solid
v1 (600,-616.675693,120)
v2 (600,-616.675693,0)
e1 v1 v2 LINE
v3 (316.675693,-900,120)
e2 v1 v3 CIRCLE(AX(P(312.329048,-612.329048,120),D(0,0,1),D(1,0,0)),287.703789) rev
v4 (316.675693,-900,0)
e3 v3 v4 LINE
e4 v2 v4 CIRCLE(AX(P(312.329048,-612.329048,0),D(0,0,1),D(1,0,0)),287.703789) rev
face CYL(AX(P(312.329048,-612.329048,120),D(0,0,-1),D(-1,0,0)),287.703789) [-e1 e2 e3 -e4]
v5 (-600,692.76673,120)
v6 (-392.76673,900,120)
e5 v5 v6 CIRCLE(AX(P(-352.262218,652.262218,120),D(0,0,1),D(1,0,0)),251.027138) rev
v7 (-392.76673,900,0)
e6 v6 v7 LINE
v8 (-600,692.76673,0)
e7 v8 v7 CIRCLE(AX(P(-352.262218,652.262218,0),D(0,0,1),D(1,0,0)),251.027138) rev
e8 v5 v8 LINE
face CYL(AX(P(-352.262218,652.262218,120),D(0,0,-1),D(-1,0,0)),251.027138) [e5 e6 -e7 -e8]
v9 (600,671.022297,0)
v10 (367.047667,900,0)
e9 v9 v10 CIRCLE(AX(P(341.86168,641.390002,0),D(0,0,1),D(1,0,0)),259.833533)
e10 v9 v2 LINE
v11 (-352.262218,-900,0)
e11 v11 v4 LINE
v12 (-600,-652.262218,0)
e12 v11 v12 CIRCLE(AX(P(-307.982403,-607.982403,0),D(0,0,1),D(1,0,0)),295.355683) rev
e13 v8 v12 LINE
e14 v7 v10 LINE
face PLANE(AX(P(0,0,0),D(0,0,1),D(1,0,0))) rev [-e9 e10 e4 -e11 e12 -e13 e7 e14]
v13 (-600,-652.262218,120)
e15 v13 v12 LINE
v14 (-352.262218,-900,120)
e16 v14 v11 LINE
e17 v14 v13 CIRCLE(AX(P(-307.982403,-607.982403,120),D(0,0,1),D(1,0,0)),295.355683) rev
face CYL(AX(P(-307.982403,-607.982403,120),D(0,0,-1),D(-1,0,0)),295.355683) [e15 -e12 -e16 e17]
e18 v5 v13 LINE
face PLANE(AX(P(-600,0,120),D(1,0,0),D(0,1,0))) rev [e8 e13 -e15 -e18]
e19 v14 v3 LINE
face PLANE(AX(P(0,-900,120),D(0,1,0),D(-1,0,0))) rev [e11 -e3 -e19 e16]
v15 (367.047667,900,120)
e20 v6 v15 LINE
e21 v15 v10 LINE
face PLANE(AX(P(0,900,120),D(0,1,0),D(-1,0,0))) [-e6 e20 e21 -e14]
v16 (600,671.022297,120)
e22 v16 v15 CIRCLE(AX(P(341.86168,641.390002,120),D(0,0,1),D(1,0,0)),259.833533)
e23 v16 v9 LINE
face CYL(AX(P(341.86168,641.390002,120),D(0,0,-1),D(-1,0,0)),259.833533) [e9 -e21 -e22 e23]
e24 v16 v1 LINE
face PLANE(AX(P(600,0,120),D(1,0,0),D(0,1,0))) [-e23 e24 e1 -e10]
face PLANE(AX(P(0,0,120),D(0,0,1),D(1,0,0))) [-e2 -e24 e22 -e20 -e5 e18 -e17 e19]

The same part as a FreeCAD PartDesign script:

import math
import FreeCAD as App
import Part
import Sketcher
from FreeCAD import Vector

doc = App.newDocument("Part")
body = doc.addObject("PartDesign::Body", "Body")

sketch1 = doc.addObject("Sketcher::SketchObject", "Sketch")
body.addObject(sketch1)
sketch1.AttachmentSupport = (doc.XY_Plane, [""])
sketch1.MapMode = "FlatFace"
sketch1.addGeometry(Part.LineSegment(Vector(367.047667, 900, 0), Vector(-392.76673, 900, 0)), False)
sketch1.addGeometry(Part.ArcOfCircle(Part.Circle(Vector(-352.262218, 652.262218, 0), Vector(0, 0, 1), 251.027138), math.radians(99.28556), math.radians(170.71444)), False)
sketch1.addGeometry(Part.LineSegment(Vector(-600, 692.76673, 0), Vector(-600, -652.262218, 0)), False)
sketch1.addGeometry(Part.ArcOfCircle(Part.Circle(Vector(-307.982403, -607.982403, 0), Vector(0, 0, 1), 295.355683), math.radians(-171.377692), math.radians(-98.622308)), False)
sketch1.addGeometry(Part.LineSegment(Vector(-352.262218, -900, 0), Vector(316.675693, -900, 0)), False)
sketch1.addGeometry(Part.ArcOfCircle(Part.Circle(Vector(312.329048, -612.329048, 0), Vector(0, 0, 1), 287.703789), math.radians(-89.134339), math.radians(-0.865661)), False)
sketch1.addGeometry(Part.LineSegment(Vector(600, -616.675693, 0), Vector(600, 671.022297, 0)), False)
sketch1.addGeometry(Part.ArcOfCircle(Part.Circle(Vector(341.86168, 641.390002, 0), Vector(0, 0, 1), 259.833533), math.radians(6.548452), math.radians(84.437515)), False)
sketch1.addConstraint(Sketcher.Constraint("Coincident", 0, 2, 1, 1))
sketch1.addConstraint(Sketcher.Constraint("Coincident", 1, 2, 2, 1))
sketch1.addConstraint(Sketcher.Constraint("Coincident", 2, 2, 3, 1))
sketch1.addConstraint(Sketcher.Constraint("Coincident", 3, 2, 4, 1))
sketch1.addConstraint(Sketcher.Constraint("Coincident", 4, 2, 5, 1))
sketch1.addConstraint(Sketcher.Constraint("Coincident", 5, 2, 6, 1))
sketch1.addConstraint(Sketcher.Constraint("Coincident", 6, 2, 7, 1))
sketch1.addConstraint(Sketcher.Constraint("Coincident", 7, 2, 0, 1))
sketch1.addConstraint(Sketcher.Constraint("Horizontal", 0))
sketch1.addConstraint(Sketcher.Constraint("Vertical", 2))
sketch1.addConstraint(Sketcher.Constraint("Horizontal", 4))
sketch1.addConstraint(Sketcher.Constraint("Vertical", 6))
sketch1.addConstraint(Sketcher.Constraint("Vertical", 1, 3, 3, 2))
sketch1.addConstraint(Sketcher.Constraint("DistanceY", -1, 1, 0, 2, 900.0))
sketch1.addConstraint(Sketcher.Constraint("DistanceX", 1, 2, -1, 1, 600.0))
sketch1.addConstraint(Sketcher.Constraint("DistanceY", 3, 2, -1, 1, 900.0))
sketch1.addConstraint(Sketcher.Constraint("DistanceX", -1, 1, 5, 2, 600.0))
sketch1.addConstraint(Sketcher.Constraint("DistanceY", -1, 1, 7, 3, 641.390002))
sketch1.addConstraint(Sketcher.Constraint("Radius", 5, 287.703789))
sketch1.addConstraint(Sketcher.Constraint("Radius", 1, 251.027138))
sketch1.addConstraint(Sketcher.Constraint("Radius", 3, 295.355683))
sketch1.addConstraint(Sketcher.Constraint("Radius", 7, 259.833533))
sketch1.addConstraint(Sketcher.Constraint("DistanceX", 4, 1, 4, 2, 668.937911))
sketch1.addConstraint(Sketcher.Constraint("DistanceY", 2, 2, 2, 1, 1345.028948))
sketch1.addConstraint(Sketcher.Constraint("DistanceY", 6, 1, 6, 2, 1287.69799))
sketch1.addConstraint(Sketcher.Constraint("DistanceX", 1, 3, 7, 3, 694.123898))
sketch1.addConstraint(Sketcher.Constraint("DistanceX", 0, 2, 0, 1, 759.814397))
sketch1.addConstraint(Sketcher.Constraint("DistanceX", 1, 3, -1, 1, 352.262218))
pad1 = doc.addObject("PartDesign::Pad", "Pad")
body.addObject(pad1)
pad1.Profile = sketch1
pad1.Length = 120

doc.recompute()
